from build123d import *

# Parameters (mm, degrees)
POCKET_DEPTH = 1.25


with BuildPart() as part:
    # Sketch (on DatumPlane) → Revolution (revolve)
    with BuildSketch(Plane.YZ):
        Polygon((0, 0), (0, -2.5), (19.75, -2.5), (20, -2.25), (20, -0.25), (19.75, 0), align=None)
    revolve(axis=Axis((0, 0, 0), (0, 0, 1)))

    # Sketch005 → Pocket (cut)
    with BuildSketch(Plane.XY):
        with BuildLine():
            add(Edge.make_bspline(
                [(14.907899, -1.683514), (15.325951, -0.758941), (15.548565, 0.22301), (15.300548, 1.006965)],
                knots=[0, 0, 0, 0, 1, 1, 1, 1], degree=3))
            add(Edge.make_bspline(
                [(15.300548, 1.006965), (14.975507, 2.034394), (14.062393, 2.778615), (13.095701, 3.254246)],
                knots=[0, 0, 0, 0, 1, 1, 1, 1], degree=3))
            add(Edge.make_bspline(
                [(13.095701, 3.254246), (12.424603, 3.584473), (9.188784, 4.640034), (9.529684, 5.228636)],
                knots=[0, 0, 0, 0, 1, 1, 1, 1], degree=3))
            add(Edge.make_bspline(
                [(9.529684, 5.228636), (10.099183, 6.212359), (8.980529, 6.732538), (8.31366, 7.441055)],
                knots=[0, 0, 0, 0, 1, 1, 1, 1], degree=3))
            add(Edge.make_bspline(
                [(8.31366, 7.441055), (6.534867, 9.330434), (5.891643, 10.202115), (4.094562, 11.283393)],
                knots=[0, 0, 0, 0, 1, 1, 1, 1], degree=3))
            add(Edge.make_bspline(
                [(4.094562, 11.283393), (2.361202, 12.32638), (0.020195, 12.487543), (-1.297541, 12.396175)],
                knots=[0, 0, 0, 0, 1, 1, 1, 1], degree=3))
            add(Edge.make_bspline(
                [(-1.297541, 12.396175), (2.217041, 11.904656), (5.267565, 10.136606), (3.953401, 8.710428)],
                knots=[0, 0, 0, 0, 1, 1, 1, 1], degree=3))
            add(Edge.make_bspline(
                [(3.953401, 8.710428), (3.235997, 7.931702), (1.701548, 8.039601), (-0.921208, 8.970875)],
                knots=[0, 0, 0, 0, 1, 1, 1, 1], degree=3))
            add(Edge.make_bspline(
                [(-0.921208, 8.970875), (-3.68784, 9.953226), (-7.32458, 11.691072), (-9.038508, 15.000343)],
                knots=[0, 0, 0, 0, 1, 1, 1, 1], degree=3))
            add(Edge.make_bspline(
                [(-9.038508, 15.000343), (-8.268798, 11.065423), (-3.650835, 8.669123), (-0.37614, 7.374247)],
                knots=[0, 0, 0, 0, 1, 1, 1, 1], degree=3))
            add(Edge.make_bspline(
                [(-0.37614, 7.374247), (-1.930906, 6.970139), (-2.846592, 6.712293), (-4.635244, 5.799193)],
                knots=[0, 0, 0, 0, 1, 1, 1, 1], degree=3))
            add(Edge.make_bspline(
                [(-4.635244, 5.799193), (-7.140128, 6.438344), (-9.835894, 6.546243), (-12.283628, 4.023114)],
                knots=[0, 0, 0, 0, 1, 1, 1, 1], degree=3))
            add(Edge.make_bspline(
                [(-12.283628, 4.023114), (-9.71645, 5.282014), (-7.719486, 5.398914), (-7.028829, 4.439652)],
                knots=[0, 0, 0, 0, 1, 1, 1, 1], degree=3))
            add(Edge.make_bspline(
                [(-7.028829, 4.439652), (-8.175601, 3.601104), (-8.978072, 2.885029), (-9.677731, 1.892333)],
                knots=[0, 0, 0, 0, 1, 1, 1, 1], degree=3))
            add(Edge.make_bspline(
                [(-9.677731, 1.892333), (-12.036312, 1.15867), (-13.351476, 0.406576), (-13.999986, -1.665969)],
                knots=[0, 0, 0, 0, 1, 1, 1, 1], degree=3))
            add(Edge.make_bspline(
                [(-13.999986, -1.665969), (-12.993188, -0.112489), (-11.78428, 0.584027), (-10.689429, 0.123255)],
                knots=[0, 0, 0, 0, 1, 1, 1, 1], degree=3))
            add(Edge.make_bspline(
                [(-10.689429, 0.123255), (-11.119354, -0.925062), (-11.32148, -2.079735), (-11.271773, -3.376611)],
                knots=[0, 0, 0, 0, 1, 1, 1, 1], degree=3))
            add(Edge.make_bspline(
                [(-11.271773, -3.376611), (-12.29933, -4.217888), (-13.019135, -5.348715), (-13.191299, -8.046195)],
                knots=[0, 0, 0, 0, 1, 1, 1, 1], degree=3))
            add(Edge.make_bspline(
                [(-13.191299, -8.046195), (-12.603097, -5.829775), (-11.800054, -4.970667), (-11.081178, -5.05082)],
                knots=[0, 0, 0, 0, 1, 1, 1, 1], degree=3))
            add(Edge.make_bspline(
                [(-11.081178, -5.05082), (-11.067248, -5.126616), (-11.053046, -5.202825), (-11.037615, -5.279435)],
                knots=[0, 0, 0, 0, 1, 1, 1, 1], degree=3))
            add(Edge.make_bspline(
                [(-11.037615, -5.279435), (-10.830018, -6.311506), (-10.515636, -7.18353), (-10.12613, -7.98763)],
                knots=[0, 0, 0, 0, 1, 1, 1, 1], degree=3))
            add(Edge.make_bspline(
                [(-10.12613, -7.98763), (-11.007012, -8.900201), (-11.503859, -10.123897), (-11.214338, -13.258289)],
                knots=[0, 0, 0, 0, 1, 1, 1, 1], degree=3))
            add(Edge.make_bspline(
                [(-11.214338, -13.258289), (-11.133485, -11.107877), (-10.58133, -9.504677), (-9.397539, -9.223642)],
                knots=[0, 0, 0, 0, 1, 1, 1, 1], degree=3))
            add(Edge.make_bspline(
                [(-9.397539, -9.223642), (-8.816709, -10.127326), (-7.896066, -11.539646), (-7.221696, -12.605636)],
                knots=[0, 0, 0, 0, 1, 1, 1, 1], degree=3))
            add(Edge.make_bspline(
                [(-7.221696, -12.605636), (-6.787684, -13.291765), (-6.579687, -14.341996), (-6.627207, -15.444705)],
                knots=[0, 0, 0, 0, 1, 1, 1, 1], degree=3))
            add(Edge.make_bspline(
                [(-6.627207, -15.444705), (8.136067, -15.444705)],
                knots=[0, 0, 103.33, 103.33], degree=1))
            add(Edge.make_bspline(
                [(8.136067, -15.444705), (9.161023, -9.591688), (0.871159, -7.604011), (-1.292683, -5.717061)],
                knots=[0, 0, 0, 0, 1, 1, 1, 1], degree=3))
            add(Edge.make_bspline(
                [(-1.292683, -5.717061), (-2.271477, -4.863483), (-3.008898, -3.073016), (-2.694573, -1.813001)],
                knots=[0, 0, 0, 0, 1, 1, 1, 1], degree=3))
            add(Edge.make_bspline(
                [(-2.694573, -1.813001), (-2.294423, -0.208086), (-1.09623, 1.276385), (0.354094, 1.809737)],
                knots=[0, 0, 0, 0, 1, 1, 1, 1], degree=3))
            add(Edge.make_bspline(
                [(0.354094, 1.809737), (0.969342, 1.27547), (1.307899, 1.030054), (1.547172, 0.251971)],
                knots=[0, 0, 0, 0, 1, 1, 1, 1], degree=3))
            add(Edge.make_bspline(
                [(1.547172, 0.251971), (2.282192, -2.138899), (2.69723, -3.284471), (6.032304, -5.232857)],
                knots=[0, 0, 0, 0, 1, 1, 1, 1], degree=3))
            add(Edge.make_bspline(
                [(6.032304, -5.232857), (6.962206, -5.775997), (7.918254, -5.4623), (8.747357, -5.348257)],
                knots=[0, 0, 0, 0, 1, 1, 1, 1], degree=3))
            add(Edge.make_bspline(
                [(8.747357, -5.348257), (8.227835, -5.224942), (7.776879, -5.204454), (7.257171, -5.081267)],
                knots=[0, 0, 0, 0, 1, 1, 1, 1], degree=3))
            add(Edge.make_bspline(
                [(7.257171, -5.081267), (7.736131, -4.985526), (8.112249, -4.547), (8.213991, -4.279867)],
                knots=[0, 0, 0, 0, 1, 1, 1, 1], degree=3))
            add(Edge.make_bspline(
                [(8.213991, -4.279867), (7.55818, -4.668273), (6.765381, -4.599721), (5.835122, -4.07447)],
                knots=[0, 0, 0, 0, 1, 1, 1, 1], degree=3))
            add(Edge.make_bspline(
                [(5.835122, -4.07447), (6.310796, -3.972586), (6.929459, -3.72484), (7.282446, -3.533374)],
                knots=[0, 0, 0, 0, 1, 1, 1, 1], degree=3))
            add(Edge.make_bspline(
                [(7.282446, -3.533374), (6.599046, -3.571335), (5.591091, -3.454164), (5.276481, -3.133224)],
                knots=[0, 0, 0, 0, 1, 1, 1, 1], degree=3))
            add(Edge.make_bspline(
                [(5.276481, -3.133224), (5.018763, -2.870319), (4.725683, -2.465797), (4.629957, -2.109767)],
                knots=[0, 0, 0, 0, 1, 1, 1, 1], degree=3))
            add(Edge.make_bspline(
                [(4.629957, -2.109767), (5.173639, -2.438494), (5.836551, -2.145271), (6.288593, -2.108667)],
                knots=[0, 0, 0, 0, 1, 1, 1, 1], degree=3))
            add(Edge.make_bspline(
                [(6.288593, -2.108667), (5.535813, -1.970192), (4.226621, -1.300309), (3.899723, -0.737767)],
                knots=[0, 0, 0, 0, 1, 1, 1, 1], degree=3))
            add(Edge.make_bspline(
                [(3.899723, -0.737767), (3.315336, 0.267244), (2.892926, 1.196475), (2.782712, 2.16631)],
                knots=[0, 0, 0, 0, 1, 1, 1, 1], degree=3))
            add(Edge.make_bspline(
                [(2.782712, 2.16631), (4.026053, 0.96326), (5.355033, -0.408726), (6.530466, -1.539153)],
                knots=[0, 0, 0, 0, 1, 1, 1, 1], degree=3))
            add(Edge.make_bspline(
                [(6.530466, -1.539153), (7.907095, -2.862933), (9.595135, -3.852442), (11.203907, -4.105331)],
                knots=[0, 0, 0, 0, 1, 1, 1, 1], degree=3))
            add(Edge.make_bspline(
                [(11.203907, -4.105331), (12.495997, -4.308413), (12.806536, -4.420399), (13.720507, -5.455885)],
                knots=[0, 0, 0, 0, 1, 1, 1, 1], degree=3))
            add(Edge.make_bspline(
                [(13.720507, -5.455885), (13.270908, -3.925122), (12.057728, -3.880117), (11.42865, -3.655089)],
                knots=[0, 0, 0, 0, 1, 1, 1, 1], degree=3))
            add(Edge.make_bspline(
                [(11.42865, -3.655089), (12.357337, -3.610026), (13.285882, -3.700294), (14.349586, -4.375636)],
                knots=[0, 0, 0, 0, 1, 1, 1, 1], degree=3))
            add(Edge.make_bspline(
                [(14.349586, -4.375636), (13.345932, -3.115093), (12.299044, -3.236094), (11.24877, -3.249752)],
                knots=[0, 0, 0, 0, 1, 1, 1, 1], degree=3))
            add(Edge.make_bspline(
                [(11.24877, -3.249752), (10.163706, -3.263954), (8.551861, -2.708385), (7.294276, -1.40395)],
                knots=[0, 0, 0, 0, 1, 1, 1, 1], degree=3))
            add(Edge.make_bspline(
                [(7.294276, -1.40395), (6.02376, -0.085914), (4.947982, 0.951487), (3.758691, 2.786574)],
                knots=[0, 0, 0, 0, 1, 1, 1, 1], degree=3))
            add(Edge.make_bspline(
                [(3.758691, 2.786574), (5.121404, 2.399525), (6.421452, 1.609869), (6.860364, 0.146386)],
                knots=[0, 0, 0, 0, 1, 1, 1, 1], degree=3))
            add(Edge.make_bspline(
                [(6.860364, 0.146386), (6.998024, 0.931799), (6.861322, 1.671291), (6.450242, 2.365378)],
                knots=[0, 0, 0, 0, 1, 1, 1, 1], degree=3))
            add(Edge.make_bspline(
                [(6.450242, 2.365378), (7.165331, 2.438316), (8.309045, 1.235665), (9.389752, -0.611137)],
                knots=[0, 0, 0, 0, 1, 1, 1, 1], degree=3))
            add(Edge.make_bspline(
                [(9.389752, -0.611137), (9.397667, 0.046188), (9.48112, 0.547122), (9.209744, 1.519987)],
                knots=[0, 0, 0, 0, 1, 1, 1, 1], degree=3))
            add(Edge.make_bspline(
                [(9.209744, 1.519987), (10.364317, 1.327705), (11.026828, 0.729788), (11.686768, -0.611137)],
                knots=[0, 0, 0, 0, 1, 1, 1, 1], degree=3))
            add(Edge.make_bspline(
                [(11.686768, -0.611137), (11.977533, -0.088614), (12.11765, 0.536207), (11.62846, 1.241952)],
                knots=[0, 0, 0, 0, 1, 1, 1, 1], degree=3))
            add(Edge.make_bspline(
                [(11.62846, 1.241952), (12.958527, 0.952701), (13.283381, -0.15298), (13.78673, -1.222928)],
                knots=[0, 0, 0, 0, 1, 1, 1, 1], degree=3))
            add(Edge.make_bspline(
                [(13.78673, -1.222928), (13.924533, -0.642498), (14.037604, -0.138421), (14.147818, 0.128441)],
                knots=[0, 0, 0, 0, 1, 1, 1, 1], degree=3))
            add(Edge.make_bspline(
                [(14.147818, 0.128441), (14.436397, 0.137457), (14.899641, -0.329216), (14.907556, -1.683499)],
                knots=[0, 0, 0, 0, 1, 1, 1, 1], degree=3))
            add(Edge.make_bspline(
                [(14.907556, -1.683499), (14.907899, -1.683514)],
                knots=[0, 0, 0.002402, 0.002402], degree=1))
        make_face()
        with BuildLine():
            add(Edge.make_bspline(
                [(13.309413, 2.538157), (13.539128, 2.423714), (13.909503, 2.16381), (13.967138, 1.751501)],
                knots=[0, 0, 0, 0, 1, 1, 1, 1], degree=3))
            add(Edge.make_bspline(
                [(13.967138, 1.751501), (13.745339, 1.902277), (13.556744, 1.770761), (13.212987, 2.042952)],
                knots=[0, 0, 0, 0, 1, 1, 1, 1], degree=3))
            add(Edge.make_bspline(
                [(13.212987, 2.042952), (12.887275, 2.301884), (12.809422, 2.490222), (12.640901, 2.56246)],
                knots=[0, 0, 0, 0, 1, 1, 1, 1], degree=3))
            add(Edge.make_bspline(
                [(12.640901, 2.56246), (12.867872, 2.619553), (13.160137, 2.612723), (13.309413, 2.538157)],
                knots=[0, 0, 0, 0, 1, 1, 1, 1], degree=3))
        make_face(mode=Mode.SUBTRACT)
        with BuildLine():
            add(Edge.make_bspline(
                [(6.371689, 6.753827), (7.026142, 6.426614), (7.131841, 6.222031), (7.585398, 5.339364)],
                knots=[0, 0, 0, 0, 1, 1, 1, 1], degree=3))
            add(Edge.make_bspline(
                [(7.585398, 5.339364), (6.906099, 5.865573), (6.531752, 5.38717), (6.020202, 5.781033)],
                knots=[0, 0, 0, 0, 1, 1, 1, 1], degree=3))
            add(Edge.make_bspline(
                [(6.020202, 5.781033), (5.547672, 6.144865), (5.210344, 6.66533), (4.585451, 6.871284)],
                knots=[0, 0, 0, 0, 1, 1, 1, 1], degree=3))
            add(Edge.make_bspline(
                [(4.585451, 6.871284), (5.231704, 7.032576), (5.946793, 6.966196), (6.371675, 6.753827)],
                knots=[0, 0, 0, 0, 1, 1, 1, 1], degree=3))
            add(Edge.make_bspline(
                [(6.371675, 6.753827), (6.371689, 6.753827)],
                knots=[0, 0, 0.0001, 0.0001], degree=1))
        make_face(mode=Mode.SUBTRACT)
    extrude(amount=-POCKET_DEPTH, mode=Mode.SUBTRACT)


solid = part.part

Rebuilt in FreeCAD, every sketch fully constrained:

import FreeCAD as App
import Part
import Sketcher

V = App.Vector

doc = App.newDocument("Part")
body = doc.addObject("PartDesign::Body", "Body")

# Sketch on YZ plane
sketch1 = body.newObject("Sketcher::SketchObject", "Sketch")
sketch1.AttachmentSupport = (doc.getObject("YZ_Plane"), [""])
sketch1.MapMode = "FlatFace"
sketch1.addGeometry([
    Part.LineSegment(V(0, 0, 0), V(0, -2.5, 0)),  # 0
    Part.LineSegment(V(0, -2.5, 0), V(19.75, -2.5, 0)),  # 1
    Part.LineSegment(V(19.75, -2.5, 0), V(20, -2.25, 0)),  # 2
    Part.LineSegment(V(20, -2.25, 0), V(20, -0.25, 0)),  # 3
    Part.LineSegment(V(20, -0.25, 0), V(19.75, 0, 0)),  # 4
    Part.LineSegment(V(19.75, 0, 0), V(0, 0, 0)),  # 5
], False)
sketch1.addConstraint([
    Sketcher.Constraint("Coincident", 0, 2, 1, 1),
    Sketcher.Constraint("Coincident", 1, 2, 2, 1),
    Sketcher.Constraint("Coincident", 2, 2, 3, 1),
    Sketcher.Constraint("Coincident", 3, 2, 4, 1),
    Sketcher.Constraint("Coincident", 4, 2, 5, 1),
    Sketcher.Constraint("Coincident", 5, 2, 0, 1),
    Sketcher.Constraint("Vertical", 0),
    Sketcher.Constraint("Horizontal", 1),
    Sketcher.Constraint("Vertical", 3),
    Sketcher.Constraint("Horizontal", 5),
    Sketcher.Constraint("Coincident", 5, 2, -1, 1),
    Sketcher.Constraint("Perpendicular", 2, 4),
    Sketcher.Constraint("Vertical", 1, 2, 4, 2),
    Sketcher.Constraint("Equal", 2, 4),
    Sketcher.Constraint("DistanceY", 3, 1, 3, 2, 2.0),
    Sketcher.Constraint("DistanceY", 0, 2, 0, 1, 2.5),
    Sketcher.Constraint("DistanceX", -1, 1, 2, 2, 20.0),
])
revolution = body.newObject("PartDesign::Revolution", "Revolution")
revolution.Profile = sketch1
revolution.ReferenceAxis = (sketch1, ["V_Axis"])
revolution.Angle = 360

# Sketch on XY plane
sketch2 = body.newObject("Sketcher::SketchObject", "Sketch001")
sketch2.AttachmentSupport = (doc.getObject("XY_Plane"), [""])
sketch2.MapMode = "FlatFace"
sketch2.addGeometry([
    Part.BSplineCurve([V(14.907899, -1.683514, 0), V(15.325951, -0.758941, 0), V(15.548565, 0.22301, 0), V(15.300548, 1.006965, 0)], [4, 4], [0, 1], False, 3, [1, 1, 1, 1], False),  # 0
    Part.BSplineCurve([V(15.300548, 1.006965, 0), V(14.975507, 2.034394, 0), V(14.062393, 2.778615, 0), V(13.095701, 3.254246, 0)], [4, 4], [0, 1], False, 3, [1, 1, 1, 1], False),  # 1
    Part.BSplineCurve([V(13.095701, 3.254246, 0), V(12.424603, 3.584473, 0), V(9.188784, 4.640034, 0), V(9.529684, 5.228636, 0)], [4, 4], [0, 1], False, 3, [1, 1, 1, 1], False),  # 2
    Part.BSplineCurve([V(9.529684, 5.228636, 0), V(10.099183, 6.212359, 0), V(8.980529, 6.732538, 0), V(8.31366, 7.441055, 0)], [4, 4], [0, 1], False, 3, [1, 1, 1, 1], False),  # 3
    Part.BSplineCurve([V(8.31366, 7.441055, 0), V(6.534867, 9.330434, 0), V(5.891643, 10.202115, 0), V(4.094562, 11.283393, 0)], [4, 4], [0, 1], False, 3, [1, 1, 1, 1], False),  # 4
    Part.BSplineCurve([V(4.094562, 11.283393, 0), V(2.361202, 12.32638, 0), V(0.020195, 12.487543, 0), V(-1.297541, 12.396175, 0)], [4, 4], [0, 1], False, 3, [1, 1, 1, 1], False),  # 5
    Part.BSplineCurve([V(-1.297541, 12.396175, 0), V(2.217041, 11.904656, 0), V(5.267565, 10.136606, 0), V(3.953401, 8.710428, 0)], [4, 4], [0, 1], False, 3, [1, 1, 1, 1], False),  # 6
    Part.BSplineCurve([V(3.953401, 8.710428, 0), V(3.235997, 7.931702, 0), V(1.701548, 8.039601, 0), V(-0.921208, 8.970875, 0)], [4, 4], [0, 1], False, 3, [1, 1, 1, 1], False),  # 7
    Part.BSplineCurve([V(-0.921208, 8.970875, 0), V(-3.68784, 9.953226, 0), V(-7.32458, 11.691072, 0), V(-9.038508, 15.000343, 0)], [4, 4], [0, 1], False, 3, [1, 1, 1, 1], False),  # 8
    Part.BSplineCurve([V(-9.038508, 15.000343, 0), V(-8.268798, 11.065423, 0), V(-3.650835, 8.669123, 0), V(-0.37614, 7.374247, 0)], [4, 4], [0, 1], False, 3, [1, 1, 1, 1], False),  # 9
    Part.BSplineCurve([V(-0.37614, 7.374247, 0), V(-1.930906, 6.970139, 0), V(-2.846592, 6.712293, 0), V(-4.635244, 5.799193, 0)], [4, 4], [0, 1], False, 3, [1, 1, 1, 1], False),  # 10
    Part.BSplineCurve([V(-4.635244, 5.799193, 0), V(-7.140128, 6.438344, 0), V(-9.835894, 6.546243, 0), V(-12.283628, 4.023114, 0)], [4, 4], [0, 1], False, 3, [1, 1, 1, 1], False),  # 11
    Part.BSplineCurve([V(-12.283628, 4.023114, 0), V(-9.71645, 5.282014, 0), V(-7.719486, 5.398914, 0), V(-7.028829, 4.439652, 0)], [4, 4], [0, 1], False, 3, [1, 1, 1, 1], False),  # 12
    Part.BSplineCurve([V(-7.028829, 4.439652, 0), V(-8.175601, 3.601104, 0), V(-8.978072, 2.885029, 0), V(-9.677731, 1.892333, 0)], [4, 4], [0, 1], False, 3, [1, 1, 1, 1], False),  # 13
    Part.BSplineCurve([V(-9.677731, 1.892333, 0), V(-12.036312, 1.15867, 0), V(-13.351476, 0.406576, 0), V(-13.999986, -1.665969, 0)], [4, 4], [0, 1], False, 3, [1, 1, 1, 1], False),  # 14
    Part.BSplineCurve([V(-13.999986, -1.665969, 0), V(-12.993188, -0.112489, 0), V(-11.78428, 0.584027, 0), V(-10.689429, 0.123255, 0)], [4, 4], [0, 1], False, 3, [1, 1, 1, 1], False),  # 15
    Part.BSplineCurve([V(-10.689429, 0.123255, 0), V(-11.119354, -0.925062, 0), V(-11.32148, -2.079735, 0), V(-11.271773, -3.376611, 0)], [4, 4], [0, 1], False, 3, [1, 1, 1, 1], False),  # 16
    Part.BSplineCurve([V(-11.271773, -3.376611, 0), V(-12.29933, -4.217888, 0), V(-13.019135, -5.348715, 0), V(-13.191299, -8.046195, 0)], [4, 4], [0, 1], False, 3, [1, 1, 1, 1], False),  # 17
    Part.BSplineCurve([V(-13.191299, -8.046195, 0), V(-12.603097, -5.829775, 0), V(-11.800054, -4.970667, 0), V(-11.081178, -5.05082, 0)], [4, 4], [0, 1], False, 3, [1, 1, 1, 1], False),  # 18
    Part.BSplineCurve([V(-11.081178, -5.05082, 0), V(-11.067248, -5.126616, 0), V(-11.053046, -5.202825, 0), V(-11.037615, -5.279435, 0)], [4, 4], [0, 1], False, 3, [1, 1, 1, 1], False),  # 19
    Part.BSplineCurve([V(-11.037615, -5.279435, 0), V(-10.830018, -6.311506, 0), V(-10.515636, -7.18353, 0), V(-10.12613, -7.98763, 0)], [4, 4], [0, 1], False, 3, [1, 1, 1, 1], False),  # 20
    Part.BSplineCurve([V(-10.12613, -7.98763, 0), V(-11.007012, -8.900201, 0), V(-11.503859, -10.123897, 0), V(-11.214338, -13.258289, 0)], [4, 4], [0, 1], False, 3, [1, 1, 1, 1], False),  # 21
    Part.BSplineCurve([V(-11.214338, -13.258289, 0), V(-11.133485, -11.107877, 0), V(-10.58133, -9.504677, 0), V(-9.397539, -9.223642, 0)], [4, 4], [0, 1], False, 3, [1, 1, 1, 1], False),  # 22
    Part.BSplineCurve([V(-9.397539, -9.223642, 0), V(-8.816709, -10.127326, 0), V(-7.896066, -11.539646, 0), V(-7.221696, -12.605636, 0)], [4, 4], [0, 1], False, 3, [1, 1, 1, 1], False),  # 23
    Part.BSplineCurve([V(-7.221696, -12.605636, 0), V(-6.787684, -13.291765, 0), V(-6.579687, -14.341996, 0), V(-6.627207, -15.444705, 0)], [4, 4], [0, 1], False, 3, [1, 1, 1, 1], False),  # 24
    Part.BSplineCurve([V(-6.627207, -15.444705, 0), V(8.136067, -15.444705, 0)], [2, 2], [0, 103.33], False, 1, [1, 1], False),  # 25
    Part.BSplineCurve([V(8.136067, -15.444705, 0), V(9.161023, -9.591688, 0), V(0.871159, -7.604011, 0), V(-1.292683, -5.717061, 0)], [4, 4], [0, 1], False, 3, [1, 1, 1, 1], False),  # 26
    Part.BSplineCurve([V(-1.292683, -5.717061, 0), V(-2.271477, -4.863483, 0), V(-3.008898, -3.073016, 0), V(-2.694573, -1.813001, 0)], [4, 4], [0, 1], False, 3, [1, 1, 1, 1], False),  # 27
    Part.BSplineCurve([V(-2.694573, -1.813001, 0), V(-2.294423, -0.208086, 0), V(-1.09623, 1.276385, 0), V(0.354094, 1.809737, 0)], [4, 4], [0, 1], False, 3, [1, 1, 1, 1], False),  # 28
    Part.BSplineCurve([V(0.354094, 1.809737, 0), V(0.969342, 1.27547, 0), V(1.307899, 1.030054, 0), V(1.547172, 0.251971, 0)], [4, 4], [0, 1], False, 3, [1, 1, 1, 1], False),  # 29
    Part.BSplineCurve([V(1.547172, 0.251971, 0), V(2.282192, -2.138899, 0), V(2.69723, -3.284471, 0), V(6.032304, -5.232857, 0)], [4, 4], [0, 1], False, 3, [1, 1, 1, 1], False),  # 30
    Part.BSplineCurve([V(6.032304, -5.232857, 0), V(6.962206, -5.775997, 0), V(7.918254, -5.4623, 0), V(8.747357, -5.348257, 0)], [4, 4], [0, 1], False, 3, [1, 1, 1, 1], False),  # 31
    Part.BSplineCurve([V(8.747357, -5.348257, 0), V(8.227835, -5.224942, 0), V(7.776879, -5.204454, 0), V(7.257171, -5.081267, 0)], [4, 4], [0, 1], False, 3, [1, 1, 1, 1], False),  # 32
    Part.BSplineCurve([V(7.257171, -5.081267, 0), V(7.736131, -4.985526, 0), V(8.112249, -4.547, 0), V(8.213991, -4.279867, 0)], [4, 4], [0, 1], False, 3, [1, 1, 1, 1], False),  # 33
    Part.BSplineCurve([V(8.213991, -4.279867, 0), V(7.55818, -4.668273, 0), V(6.765381, -4.599721, 0), V(5.835122, -4.07447, 0)], [4, 4], [0, 1], False, 3, [1, 1, 1, 1], False),  # 34
    Part.BSplineCurve([V(5.835122, -4.07447, 0), V(6.310796, -3.972586, 0), V(6.929459, -3.72484, 0), V(7.282446, -3.533374, 0)], [4, 4], [0, 1], False, 3, [1, 1, 1, 1], False),  # 35
    Part.BSplineCurve([V(7.282446, -3.533374, 0), V(6.599046, -3.571335, 0), V(5.591091, -3.454164, 0), V(5.276481, -3.133224, 0)], [4, 4], [0, 1], False, 3, [1, 1, 1, 1], False),  # 36
    Part.BSplineCurve([V(5.276481, -3.133224, 0), V(5.018763, -2.870319, 0), V(4.725683, -2.465797, 0), V(4.629957, -2.109767, 0)], [4, 4], [0, 1], False, 3, [1, 1, 1, 1], False),  # 37
    Part.BSplineCurve([V(4.629957, -2.109767, 0), V(5.173639, -2.438494, 0), V(5.836551, -2.145271, 0), V(6.288593, -2.108667, 0)], [4, 4], [0, 1], False, 3, [1, 1, 1, 1], False),  # 38
    Part.BSplineCurve([V(6.288593, -2.108667, 0), V(5.535813, -1.970192, 0), V(4.226621, -1.300309, 0), V(3.899723, -0.737767, 0)], [4, 4], [0, 1], False, 3, [1, 1, 1, 1], False),  # 39
    Part.BSplineCurve([V(3.899723, -0.737767, 0), V(3.315336, 0.267244, 0), V(2.892926, 1.196475, 0), V(2.782712, 2.16631, 0)], [4, 4], [0, 1], False, 3, [1, 1, 1, 1], False),  # 40
    Part.BSplineCurve([V(2.782712, 2.16631, 0), V(4.026053, 0.96326, 0), V(5.355033, -0.408726, 0), V(6.530466, -1.539153, 0)], [4, 4], [0, 1], False, 3, [1, 1, 1, 1], False),  # 41
    Part.BSplineCurve([V(6.530466, -1.539153, 0), V(7.907095, -2.862933, 0), V(9.595135, -3.852442, 0), V(11.203907, -4.105331, 0)], [4, 4], [0, 1], False, 3, [1, 1, 1, 1], False),  # 42
    Part.BSplineCurve([V(11.203907, -4.105331, 0), V(12.495997, -4.308413, 0), V(12.806536, -4.420399, 0), V(13.720507, -5.455885, 0)], [4, 4], [0, 1], False, 3, [1, 1, 1, 1], False),  # 43
    Part.BSplineCurve([V(13.720507, -5.455885, 0), V(13.270908, -3.925122, 0), V(12.057728, -3.880117, 0), V(11.42865, -3.655089, 0)], [4, 4], [0, 1], False, 3, [1, 1, 1, 1], False),  # 44
    Part.BSplineCurve([V(11.42865, -3.655089, 0), V(12.357337, -3.610026, 0), V(13.285882, -3.700294, 0), V(14.349586, -4.375636, 0)], [4, 4], [0, 1], False, 3, [1, 1, 1, 1], False),  # 45
    Part.BSplineCurve([V(14.349586, -4.375636, 0), V(13.345932, -3.115093, 0), V(12.299044, -3.236094, 0), V(11.24877, -3.249752, 0)], [4, 4], [0, 1], False, 3, [1, 1, 1, 1], False),  # 46
    Part.BSplineCurve([V(11.24877, -3.249752, 0), V(10.163706, -3.263954, 0), V(8.551861, -2.708385, 0), V(7.294276, -1.40395, 0)], [4, 4], [0, 1], False, 3, [1, 1, 1, 1], False),  # 47
    Part.BSplineCurve([V(7.294276, -1.40395, 0), V(6.02376, -0.085914, 0), V(4.947982, 0.951487, 0), V(3.758691, 2.786574, 0)], [4, 4], [0, 1], False, 3, [1, 1, 1, 1], False),  # 48
    Part.BSplineCurve([V(3.758691, 2.786574, 0), V(5.121404, 2.399525, 0), V(6.421452, 1.609869, 0), V(6.860364, 0.146386, 0)], [4, 4], [0, 1], False, 3, [1, 1, 1, 1], False),  # 49
    Part.BSplineCurve([V(6.860364, 0.146386, 0), V(6.998024, 0.931799, 0), V(6.861322, 1.671291, 0), V(6.450242, 2.365378, 0)], [4, 4], [0, 1], False, 3, [1, 1, 1, 1], False),  # 50
    Part.BSplineCurve([V(6.450242, 2.365378, 0), V(7.165331, 2.438316, 0), V(8.309045, 1.235665, 0), V(9.389752, -0.611137, 0)], [4, 4], [0, 1], False, 3, [1, 1, 1, 1], False),  # 51
    Part.BSplineCurve([V(9.389752, -0.611137, 0), V(9.397667, 0.046188, 0), V(9.48112, 0.547122, 0), V(9.209744, 1.519987, 0)], [4, 4], [0, 1], False, 3, [1, 1, 1, 1], False),  # 52
    Part.BSplineCurve([V(9.209744, 1.519987, 0), V(10.364317, 1.327705, 0), V(11.026828, 0.729788, 0), V(11.686768, -0.611137, 0)], [4, 4], [0, 1], False, 3, [1, 1, 1, 1], False),  # 53
    Part.BSplineCurve([V(11.686768, -0.611137, 0), V(11.977533, -0.088614, 0), V(12.11765, 0.536207, 0), V(11.62846, 1.241952, 0)], [4, 4], [0, 1], False, 3, [1, 1, 1, 1], False),  # 54
    Part.BSplineCurve([V(11.62846, 1.241952, 0), V(12.958527, 0.952701, 0), V(13.283381, -0.15298, 0), V(13.78673, -1.222928, 0)], [4, 4], [0, 1], False, 3, [1, 1, 1, 1], False),  # 55
    Part.BSplineCurve([V(13.78673, -1.222928, 0), V(13.924533, -0.642498, 0), V(14.037604, -0.138421, 0), V(14.147818, 0.128441, 0)], [4, 4], [0, 1], False, 3, [1, 1, 1, 1], False),  # 56
    Part.BSplineCurve([V(14.147818, 0.128441, 0), V(14.436397, 0.137457, 0), V(14.899641, -0.329216, 0), V(14.907556, -1.683499, 0)], [4, 4], [0, 1], False, 3, [1, 1, 1, 1], False),  # 57
    Part.BSplineCurve([V(14.907556, -1.683499, 0), V(14.907899, -1.683514, 0)], [2, 2], [0, 0.002402], False, 1, [1, 1], False),  # 58
    Part.BSplineCurve([V(12.640901, 2.56246, 0), V(12.867872, 2.619553, 0), V(13.160137, 2.612723, 0), V(13.309413, 2.538157, 0)], [4, 4], [0, 1], False, 3, [1, 1, 1, 1], False),  # 59
    Part.BSplineCurve([V(13.309413, 2.538157, 0), V(13.539128, 2.423714, 0), V(13.909503, 2.16381, 0), V(13.967138, 1.751501, 0)], [4, 4], [0, 1], False, 3, [1, 1, 1, 1], False),  # 60
    Part.BSplineCurve([V(13.967138, 1.751501, 0), V(13.745339, 1.902277, 0), V(13.556744, 1.770761, 0), V(13.212987, 2.042952, 0)], [4, 4], [0, 1], False, 3, [1, 1, 1, 1], False),  # 61
    Part.BSplineCurve([V(13.212987, 2.042952, 0), V(12.887275, 2.301884, 0), V(12.809422, 2.490222, 0), V(12.640901, 2.56246, 0)], [4, 4], [0, 1], False, 3, [1, 1, 1, 1], False),  # 62
    Part.BSplineCurve([V(6.371675, 6.753827, 0), V(6.371689, 6.753827, 0)], [2, 2], [0, 0.0001], False, 1, [1, 1], False),  # 63
    Part.BSplineCurve([V(6.371689, 6.753827, 0), V(7.026142, 6.426614, 0), V(7.131841, 6.222031, 0), V(7.585398, 5.339364, 0)], [4, 4], [0, 1], False, 3, [1, 1, 1, 1], False),  # 64
    Part.BSplineCurve([V(7.585398, 5.339364, 0), V(6.906099, 5.865573, 0), V(6.531752, 5.38717, 0), V(6.020202, 5.781033, 0)], [4, 4], [0, 1], False, 3, [1, 1, 1, 1], False),  # 65
    Part.BSplineCurve([V(6.020202, 5.781033, 0), V(5.547672, 6.144865, 0), V(5.210344, 6.66533, 0), V(4.585451, 6.871284, 0)], [4, 4], [0, 1], False, 3, [1, 1, 1, 1], False),  # 66
    Part.BSplineCurve([V(4.585451, 6.871284, 0), V(5.231704, 7.032576, 0), V(5.946793, 6.966196, 0), V(6.371675, 6.753827, 0)], [4, 4], [0, 1], False, 3, [1, 1, 1, 1], False),  # 67
], False)
sketch2.addConstraint([
    Sketcher.Constraint("Block", 0),
    Sketcher.Constraint("Block", 1),
    Sketcher.Constraint("Block", 2),
    Sketcher.Constraint("Block", 3),
    Sketcher.Constraint("Block", 4),
    Sketcher.Constraint("Block", 5),
    Sketcher.Constraint("Block", 6),
    Sketcher.Constraint("Block", 7),
    Sketcher.Constraint("Block", 8),
    Sketcher.Constraint("Block", 9),
    Sketcher.Constraint("Block", 10),
    Sketcher.Constraint("Block", 11),
    Sketcher.Constraint("Block", 12),
    Sketcher.Constraint("Block", 13),
    Sketcher.Constraint("Block", 14),
    Sketcher.Constraint("Block", 15),
    Sketcher.Constraint("Block", 16),
    Sketcher.Constraint("Block", 17),
    Sketcher.Constraint("Block", 18),
    Sketcher.Constraint("Block", 19),
    Sketcher.Constraint("Block", 20),
    Sketcher.Constraint("Block", 21),
    Sketcher.Constraint("Block", 22),
    Sketcher.Constraint("Block", 23),
    Sketcher.Constraint("Block", 24),
    Sketcher.Constraint("Block", 25),
    Sketcher.Constraint("Block", 26),
    Sketcher.Constraint("Block", 27),
    Sketcher.Constraint("Block", 28),
    Sketcher.Constraint("Block", 29),
    Sketcher.Constraint("Block", 30),
    Sketcher.Constraint("Block", 31),
    Sketcher.Constraint("Block", 32),
    Sketcher.Constraint("Block", 33),
    Sketcher.Constraint("Block", 34),
    Sketcher.Constraint("Block", 35),
    Sketcher.Constraint("Block", 36),
    Sketcher.Constraint("Block", 37),
    Sketcher.Constraint("Block", 38),
    Sketcher.Constraint("Block", 39),
    Sketcher.Constraint("Block", 40),
    Sketcher.Constraint("Block", 41),
    Sketcher.Constraint("Block", 42),
    Sketcher.Constraint("Block", 43),
    Sketcher.Constraint("Block", 44),
    Sketcher.Constraint("Block", 45),
    Sketcher.Constraint("Block", 46),
    Sketcher.Constraint("Block", 47),
    Sketcher.Constraint("Block", 48),
    Sketcher.Constraint("Block", 49),
    Sketcher.Constraint("Block", 50),
    Sketcher.Constraint("Block", 51),
    Sketcher.Constraint("Block", 52),
    Sketcher.Constraint("Block", 53),
    Sketcher.Constraint("Block", 54),
    Sketcher.Constraint("Block", 55),
    Sketcher.Constraint("Block", 56),
    Sketcher.Constraint("Block", 57),
    Sketcher.Constraint("Block", 58),
    Sketcher.Constraint("Block", 59),
    Sketcher.Constraint("Block", 60),
    Sketcher.Constraint("Block", 61),
    Sketcher.Constraint("Block", 62),
    Sketcher.Constraint("Block", 63),
    Sketcher.Constraint("Block", 64),
    Sketcher.Constraint("Block", 65),
    Sketcher.Constraint("Block", 66),
    Sketcher.Constraint("Block", 67),
])
pocket1 = body.newObject("PartDesign::Pocket", "Pocket")
pocket1.Profile = sketch2
pocket1.Length = 1.25

doc.recompute()
